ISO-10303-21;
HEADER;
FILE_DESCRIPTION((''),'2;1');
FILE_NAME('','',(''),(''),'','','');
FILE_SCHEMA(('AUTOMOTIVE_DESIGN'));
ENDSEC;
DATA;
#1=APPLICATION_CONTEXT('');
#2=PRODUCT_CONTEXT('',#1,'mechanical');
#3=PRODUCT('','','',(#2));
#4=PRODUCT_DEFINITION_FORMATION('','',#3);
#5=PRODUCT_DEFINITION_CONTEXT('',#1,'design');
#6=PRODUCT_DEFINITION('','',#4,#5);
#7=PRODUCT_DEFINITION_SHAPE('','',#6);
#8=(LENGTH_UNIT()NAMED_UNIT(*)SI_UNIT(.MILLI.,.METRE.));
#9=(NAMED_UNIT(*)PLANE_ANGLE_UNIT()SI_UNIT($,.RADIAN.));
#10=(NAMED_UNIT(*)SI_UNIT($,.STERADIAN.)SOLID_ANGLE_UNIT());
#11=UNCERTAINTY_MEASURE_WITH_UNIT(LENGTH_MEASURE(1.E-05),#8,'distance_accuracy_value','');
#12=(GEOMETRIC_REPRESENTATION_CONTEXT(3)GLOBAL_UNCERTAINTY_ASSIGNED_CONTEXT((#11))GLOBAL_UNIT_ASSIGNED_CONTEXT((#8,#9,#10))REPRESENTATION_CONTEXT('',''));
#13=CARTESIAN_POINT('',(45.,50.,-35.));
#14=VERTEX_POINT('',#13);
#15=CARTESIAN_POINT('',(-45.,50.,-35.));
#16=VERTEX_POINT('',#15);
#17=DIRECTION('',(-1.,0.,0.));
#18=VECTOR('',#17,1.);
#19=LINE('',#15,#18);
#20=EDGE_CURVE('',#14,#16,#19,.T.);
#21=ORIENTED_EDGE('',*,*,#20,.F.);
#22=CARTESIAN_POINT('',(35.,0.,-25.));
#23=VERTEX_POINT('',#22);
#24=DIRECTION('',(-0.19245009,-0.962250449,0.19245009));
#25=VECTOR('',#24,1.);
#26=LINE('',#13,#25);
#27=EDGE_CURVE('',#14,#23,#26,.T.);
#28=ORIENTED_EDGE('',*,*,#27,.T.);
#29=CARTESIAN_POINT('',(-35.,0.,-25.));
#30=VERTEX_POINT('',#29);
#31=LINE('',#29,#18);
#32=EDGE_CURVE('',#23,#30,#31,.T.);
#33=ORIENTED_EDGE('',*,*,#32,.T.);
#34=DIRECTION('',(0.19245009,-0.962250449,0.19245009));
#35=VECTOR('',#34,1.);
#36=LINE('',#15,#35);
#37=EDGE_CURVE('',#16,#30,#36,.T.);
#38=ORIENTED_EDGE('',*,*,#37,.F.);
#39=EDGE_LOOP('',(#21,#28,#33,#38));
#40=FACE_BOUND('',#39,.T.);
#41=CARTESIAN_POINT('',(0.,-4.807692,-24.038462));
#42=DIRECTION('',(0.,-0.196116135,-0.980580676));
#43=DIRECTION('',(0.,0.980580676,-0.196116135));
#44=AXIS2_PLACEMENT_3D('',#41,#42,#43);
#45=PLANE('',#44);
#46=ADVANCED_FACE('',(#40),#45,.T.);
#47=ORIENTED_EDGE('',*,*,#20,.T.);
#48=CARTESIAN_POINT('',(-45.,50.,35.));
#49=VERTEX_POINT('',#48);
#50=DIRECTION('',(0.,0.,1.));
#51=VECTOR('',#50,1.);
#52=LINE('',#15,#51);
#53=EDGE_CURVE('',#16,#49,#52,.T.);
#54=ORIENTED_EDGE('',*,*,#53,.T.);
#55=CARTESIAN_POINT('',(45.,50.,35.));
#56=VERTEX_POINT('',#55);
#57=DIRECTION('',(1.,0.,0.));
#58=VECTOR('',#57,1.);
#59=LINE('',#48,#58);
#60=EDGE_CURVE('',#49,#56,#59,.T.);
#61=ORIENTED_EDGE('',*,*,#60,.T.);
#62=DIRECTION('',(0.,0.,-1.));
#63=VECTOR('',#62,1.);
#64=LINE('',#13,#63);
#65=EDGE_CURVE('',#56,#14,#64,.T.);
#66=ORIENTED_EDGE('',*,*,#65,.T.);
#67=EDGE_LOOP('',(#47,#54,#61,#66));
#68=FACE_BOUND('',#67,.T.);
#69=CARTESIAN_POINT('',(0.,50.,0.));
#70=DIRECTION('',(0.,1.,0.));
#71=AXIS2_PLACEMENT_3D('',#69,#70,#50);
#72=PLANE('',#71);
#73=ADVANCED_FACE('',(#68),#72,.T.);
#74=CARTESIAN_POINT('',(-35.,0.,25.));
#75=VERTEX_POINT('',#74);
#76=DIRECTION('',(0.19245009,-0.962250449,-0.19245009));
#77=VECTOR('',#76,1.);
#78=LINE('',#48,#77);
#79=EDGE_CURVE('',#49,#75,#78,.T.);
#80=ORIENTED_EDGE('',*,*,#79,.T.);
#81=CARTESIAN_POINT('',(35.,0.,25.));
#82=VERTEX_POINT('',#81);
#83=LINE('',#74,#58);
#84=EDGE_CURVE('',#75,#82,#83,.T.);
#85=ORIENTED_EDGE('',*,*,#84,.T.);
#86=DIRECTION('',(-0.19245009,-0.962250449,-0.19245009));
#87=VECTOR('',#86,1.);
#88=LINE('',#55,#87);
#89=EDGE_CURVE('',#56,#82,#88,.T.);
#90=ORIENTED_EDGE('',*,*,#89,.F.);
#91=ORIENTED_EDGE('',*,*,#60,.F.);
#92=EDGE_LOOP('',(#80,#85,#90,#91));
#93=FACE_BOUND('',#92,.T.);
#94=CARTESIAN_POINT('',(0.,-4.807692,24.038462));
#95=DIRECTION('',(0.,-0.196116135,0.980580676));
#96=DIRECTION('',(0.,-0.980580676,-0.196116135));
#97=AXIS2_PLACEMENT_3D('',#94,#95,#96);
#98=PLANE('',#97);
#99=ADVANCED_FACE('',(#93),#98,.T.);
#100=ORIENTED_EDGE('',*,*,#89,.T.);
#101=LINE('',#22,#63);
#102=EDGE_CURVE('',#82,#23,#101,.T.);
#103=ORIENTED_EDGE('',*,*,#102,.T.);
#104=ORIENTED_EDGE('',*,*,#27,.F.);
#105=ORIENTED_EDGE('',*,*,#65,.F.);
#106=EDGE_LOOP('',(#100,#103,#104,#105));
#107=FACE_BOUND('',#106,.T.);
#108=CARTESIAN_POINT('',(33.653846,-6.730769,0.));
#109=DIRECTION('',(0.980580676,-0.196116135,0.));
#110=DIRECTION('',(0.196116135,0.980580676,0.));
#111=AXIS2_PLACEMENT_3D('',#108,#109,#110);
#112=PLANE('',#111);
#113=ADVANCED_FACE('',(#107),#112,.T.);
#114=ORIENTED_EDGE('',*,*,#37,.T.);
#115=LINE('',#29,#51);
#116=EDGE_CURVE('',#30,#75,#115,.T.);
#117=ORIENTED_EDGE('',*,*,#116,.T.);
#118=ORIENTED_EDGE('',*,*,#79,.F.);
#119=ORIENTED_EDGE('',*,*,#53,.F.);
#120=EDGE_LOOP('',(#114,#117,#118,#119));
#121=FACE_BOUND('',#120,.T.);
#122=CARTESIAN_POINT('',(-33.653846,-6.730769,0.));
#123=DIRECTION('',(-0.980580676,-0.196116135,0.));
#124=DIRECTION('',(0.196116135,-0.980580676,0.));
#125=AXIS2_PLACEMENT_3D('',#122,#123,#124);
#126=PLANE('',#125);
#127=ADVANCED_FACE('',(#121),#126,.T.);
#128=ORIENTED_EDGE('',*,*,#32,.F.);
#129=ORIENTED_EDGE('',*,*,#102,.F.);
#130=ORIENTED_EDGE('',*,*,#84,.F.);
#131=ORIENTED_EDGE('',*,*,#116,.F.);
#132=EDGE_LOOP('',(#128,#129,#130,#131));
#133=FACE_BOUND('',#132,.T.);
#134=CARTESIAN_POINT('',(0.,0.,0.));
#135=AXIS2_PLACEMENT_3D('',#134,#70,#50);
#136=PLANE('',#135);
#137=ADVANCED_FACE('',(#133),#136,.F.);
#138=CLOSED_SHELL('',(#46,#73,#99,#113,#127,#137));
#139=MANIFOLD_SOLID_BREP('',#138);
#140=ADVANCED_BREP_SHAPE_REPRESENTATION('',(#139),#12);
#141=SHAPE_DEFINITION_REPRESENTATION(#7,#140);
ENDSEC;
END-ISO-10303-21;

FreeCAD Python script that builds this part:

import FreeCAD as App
import Part
import Sketcher

doc = App.newDocument("Part")
body = doc.addObject("PartDesign::Body", "Body")

# Sketch on XZ plane
sketch1 = body.newObject("Sketcher::SketchObject", "Sketch")
sketch1.AttachmentSupport = (doc.getObject("XZ_Plane"), [""])
sketch1.MapMode = "FlatFace"
sketch1.AttachmentOffset = App.Placement(App.Vector(0, 0, -50), App.Rotation())
sketch1.addGeometry([
    Part.LineSegment(App.Vector(45, -35, 0), App.Vector(-45, -35, 0)),
    Part.LineSegment(App.Vector(-45, -35, 0), App.Vector(-45, 35, 0)),
    Part.LineSegment(App.Vector(-45, 35, 0), App.Vector(45, 35, 0)),
    Part.LineSegment(App.Vector(45, 35, 0), App.Vector(45, -35, 0)),
], False)
sketch1.addConstraint([
    Sketcher.Constraint("Coincident", 0, 2, 1, 1),
    Sketcher.Constraint("Coincident", 1, 2, 2, 1),
    Sketcher.Constraint("Coincident", 2, 2, 3, 1),
    Sketcher.Constraint("Coincident", 3, 2, 0, 1),
    Sketcher.Constraint("Horizontal", 0),
    Sketcher.Constraint("Vertical", 1),
    Sketcher.Constraint("Horizontal", 2),
    Sketcher.Constraint("Vertical", 3),
    Sketcher.Constraint("Symmetric", 0, 2, 2, 2, -1, 1),
    Sketcher.Constraint("DistanceX", 0, 2, 0, 1, 90.0),
    Sketcher.Constraint("DistanceY", 1, 1, 1, 2, 70.0),
])

# Sketch on XZ plane
sketch2 = body.newObject("Sketcher::SketchObject", "Sketch001")
sketch2.AttachmentSupport = (doc.getObject("XZ_Plane"), [""])
sketch2.MapMode = "FlatFace"
sketch2.addGeometry([
    Part.LineSegment(App.Vector(35, -25, 0), App.Vector(-35, -25, 0)),
    Part.LineSegment(App.Vector(-35, -25, 0), App.Vector(-35, 25, 0)),
    Part.LineSegment(App.Vector(-35, 25, 0), App.Vector(35, 25, 0)),
    Part.LineSegment(App.Vector(35, 25, 0), App.Vector(35, -25, 0)),
], False)
sketch2.addConstraint([
    Sketcher.Constraint("Coincident", 0, 2, 1, 1),
    Sketcher.Constraint("Coincident", 1, 2, 2, 1),
    Sketcher.Constraint("Coincident", 2, 2, 3, 1),
    Sketcher.Constraint("Coincident", 3, 2, 0, 1),
    Sketcher.Constraint("Horizontal", 0),
    Sketcher.Constraint("Vertical", 1),
    Sketcher.Constraint("Horizontal", 2),
    Sketcher.Constraint("Vertical", 3),
    Sketcher.Constraint("Symmetric", 0, 2, 2, 2, -1, 1),
    Sketcher.Constraint("DistanceX", 0, 2, 0, 1, 70.0),
    Sketcher.Constraint("DistanceY", 1, 1, 1, 2, 50.0),
])

additiveloft = body.newObject("PartDesign::AdditiveLoft", "AdditiveLoft")
additiveloft.Profile = sketch1
additiveloft.Sections = [sketch2]

doc.recompute()
